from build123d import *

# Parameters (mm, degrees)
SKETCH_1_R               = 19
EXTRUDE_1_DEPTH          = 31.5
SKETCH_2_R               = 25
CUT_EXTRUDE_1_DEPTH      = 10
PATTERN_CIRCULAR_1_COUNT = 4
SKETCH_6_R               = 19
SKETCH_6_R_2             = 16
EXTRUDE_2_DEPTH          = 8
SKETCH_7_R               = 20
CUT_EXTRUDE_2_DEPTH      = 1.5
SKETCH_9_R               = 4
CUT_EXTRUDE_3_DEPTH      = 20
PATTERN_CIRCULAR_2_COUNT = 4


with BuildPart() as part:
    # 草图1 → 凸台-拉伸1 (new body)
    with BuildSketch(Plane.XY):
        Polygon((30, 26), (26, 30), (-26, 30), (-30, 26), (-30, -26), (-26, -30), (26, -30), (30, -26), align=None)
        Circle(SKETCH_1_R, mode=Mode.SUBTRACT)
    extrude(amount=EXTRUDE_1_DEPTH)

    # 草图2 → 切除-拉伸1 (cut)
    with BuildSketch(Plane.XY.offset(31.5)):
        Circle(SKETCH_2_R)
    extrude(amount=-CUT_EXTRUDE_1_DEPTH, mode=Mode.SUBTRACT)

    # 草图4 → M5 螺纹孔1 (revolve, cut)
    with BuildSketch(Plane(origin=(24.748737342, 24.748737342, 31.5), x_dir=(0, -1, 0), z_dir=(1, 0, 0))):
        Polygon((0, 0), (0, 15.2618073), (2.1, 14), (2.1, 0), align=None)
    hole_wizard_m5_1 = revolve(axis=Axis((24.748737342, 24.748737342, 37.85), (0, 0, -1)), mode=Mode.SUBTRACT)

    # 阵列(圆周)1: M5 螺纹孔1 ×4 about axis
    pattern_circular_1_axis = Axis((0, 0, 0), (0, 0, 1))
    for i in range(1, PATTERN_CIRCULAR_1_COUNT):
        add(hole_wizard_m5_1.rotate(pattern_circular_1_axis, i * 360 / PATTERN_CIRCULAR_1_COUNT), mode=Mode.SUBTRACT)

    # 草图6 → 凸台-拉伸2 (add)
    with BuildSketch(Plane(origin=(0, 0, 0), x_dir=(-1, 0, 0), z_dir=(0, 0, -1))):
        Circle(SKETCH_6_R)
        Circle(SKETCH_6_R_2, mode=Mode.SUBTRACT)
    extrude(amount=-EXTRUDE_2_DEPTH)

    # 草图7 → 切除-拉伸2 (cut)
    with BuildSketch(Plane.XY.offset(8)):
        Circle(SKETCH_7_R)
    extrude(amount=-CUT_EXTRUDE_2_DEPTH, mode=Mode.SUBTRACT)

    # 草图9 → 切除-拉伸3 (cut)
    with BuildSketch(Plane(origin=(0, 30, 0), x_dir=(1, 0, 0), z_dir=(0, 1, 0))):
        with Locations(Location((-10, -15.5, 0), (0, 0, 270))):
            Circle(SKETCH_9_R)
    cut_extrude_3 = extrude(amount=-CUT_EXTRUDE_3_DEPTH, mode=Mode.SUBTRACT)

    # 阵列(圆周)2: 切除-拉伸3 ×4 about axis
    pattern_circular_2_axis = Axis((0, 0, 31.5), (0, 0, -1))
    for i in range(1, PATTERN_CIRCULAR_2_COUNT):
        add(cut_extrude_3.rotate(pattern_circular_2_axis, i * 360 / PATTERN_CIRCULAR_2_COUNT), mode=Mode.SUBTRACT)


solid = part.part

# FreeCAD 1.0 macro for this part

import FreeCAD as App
import Part
import Sketcher

V = App.Vector
Q = App.Units.Quantity

doc = App.newDocument("Part")
body = doc.addObject("PartDesign::Body", "Body")

sketch1 = doc.addObject("Sketcher::SketchObject", "Sketch")
body.addObject(sketch1)
sketch1.AttachmentSupport = (doc.XY_Plane, [""])
sketch1.MapMode = "FlatFace"
sketch1.addGeometry([
    Part.LineSegment(V(30, 26, 0), V(26, 30, 0)),
    Part.LineSegment(V(26, 30, 0), V(-26, 30, 0)),
    Part.LineSegment(V(-26, 30, 0), V(-30, 26, 0)),
    Part.LineSegment(V(-30, 26, 0), V(-30, -26, 0)),
    Part.LineSegment(V(-30, -26, 0), V(-26, -30, 0)),
    Part.LineSegment(V(-26, -30, 0), V(26, -30, 0)),
    Part.LineSegment(V(26, -30, 0), V(30, -26, 0)),
    Part.LineSegment(V(30, -26, 0), V(30, 26, 0)),
    Part.Circle(V(0, 0, 0), V(0, 0, 1), 19),
], False)
sketch1.addConstraint([
    Sketcher.Constraint("Coincident", 0, 2, 1, 1),
    Sketcher.Constraint("Coincident", 1, 2, 2, 1),
    Sketcher.Constraint("Coincident", 2, 2, 3, 1),
    Sketcher.Constraint("Coincident", 3, 2, 4, 1),
    Sketcher.Constraint("Coincident", 4, 2, 5, 1),
    Sketcher.Constraint("Coincident", 5, 2, 6, 1),
    Sketcher.Constraint("Coincident", 6, 2, 7, 1),
    Sketcher.Constraint("Coincident", 7, 2, 0, 1),
    Sketcher.Constraint("Horizontal", 1),
    Sketcher.Constraint("Vertical", 3),
    Sketcher.Constraint("Horizontal", 5),
    Sketcher.Constraint("Vertical", 7),
    Sketcher.Constraint("Coincident", 8, 3, -1, 1),
    Sketcher.Constraint("Symmetric", 0, 2, 4, 2, -1, 1),
    Sketcher.Constraint("Symmetric", 2, 2, 6, 2, -1, 1),
    Sketcher.Constraint("Perpendicular", 0, 2),
    Sketcher.Constraint("Perpendicular", 2, 4),
    Sketcher.Constraint("Perpendicular", 4, 6),
    Sketcher.Constraint("Horizontal", 3, 2, 6, 2),
    Sketcher.Constraint("Vertical", 1, 2, 4, 2),
    Sketcher.Constraint("Equal", 5, 3),
    Sketcher.Constraint("Diameter", 8, 38.0),
    Sketcher.Constraint("DistanceX", 1, 2, 1, 1, 52.0),
    Sketcher.Constraint("DistanceY", -1, 1, 0, 2, 30.0),
])
pad1 = doc.addObject("PartDesign::Pad", "Pad")
body.addObject(pad1)
pad1.Profile = sketch1
pad1.Length = 31.5

sketch2 = doc.addObject("Sketcher::SketchObject", "Sketch001")
body.addObject(sketch2)
sketch2.AttachmentSupport = (doc.XY_Plane, [""])
sketch2.MapMode = "FlatFace"
sketch2.AttachmentOffset = App.Placement(V(0, 0, 31.5), App.Rotation())
sketch2.addGeometry(Part.Circle(V(0, 0, 0), V(0, 0, 1), 25), False)
sketch2.addConstraint([
    Sketcher.Constraint("Coincident", 0, 3, -1, 1),
    Sketcher.Constraint("Diameter", 0, 50.0),
])
pocket1 = doc.addObject("PartDesign::Pocket", "Pocket")
body.addObject(pocket1)
pocket1.Profile = sketch2
pocket1.Length = 10

sketch3 = doc.addObject("Sketcher::SketchObject", "Sketch002")
body.addObject(sketch3)
sketch3.AttachmentSupport = (doc.YZ_Plane, [""])
sketch3.MapMode = "FlatFace"
sketch3.AttachmentOffset = App.Placement(V(0, 0, 24.748737), App.Rotation())
sketch3.addGeometry([
    Part.LineSegment(V(24.748737, 16.238193, 0), V(24.748737, 31.5, 0)),
    Part.LineSegment(V(24.748737, 31.5, 0), V(22.648737, 31.5, 0)),
    Part.LineSegment(V(22.648737, 31.5, 0), V(22.648737, 17.5, 0)),
    Part.LineSegment(V(22.648737, 17.5, 0), V(24.748737, 16.238193, 0)),
], False)
sketch3.addGeometry(Part.LineSegment(V(24.748737, 31.5, 0), V(24.748737, 16.238193, 0)), True)
sketch3.addConstraint([
    Sketcher.Constraint("Coincident", 0, 2, 1, 1),
    Sketcher.Constraint("Coincident", 1, 2, 2, 1),
    Sketcher.Constraint("Coincident", 2, 2, 3, 1),
    Sketcher.Constraint("Coincident", 3, 2, 0, 1),
    Sketcher.Constraint("Vertical", 0),
    Sketcher.Constraint("Horizontal", 1),
    Sketcher.Constraint("Vertical", 2),
    Sketcher.Constraint("Vertical", 4),
    Sketcher.Constraint("Coincident", 4, 1, 0, 2),
    Sketcher.Constraint("Equal", 0, 4),
    Sketcher.Constraint("DistanceY", 2, 2, 2, 1, 14.0),
    Sketcher.Constraint("Angle", 3, Q("-31 deg")),
    Sketcher.Constraint("DistanceX", 1, 2, 1, 1, 2.1),
    Sketcher.Constraint("DistanceY", -1, 1, 0, 2, 31.5),
    Sketcher.Constraint("DistanceX", -1, 1, 0, 2, 24.748737),
])
groove = doc.addObject("PartDesign::Groove", "Groove")
body.addObject(groove)
groove.Profile = sketch3
groove.ReferenceAxis = (sketch3, ["Axis0"])
groove.Angle = 360
doc.recompute()

polarpattern = doc.addObject("PartDesign::PolarPattern", "PolarPattern")
body.addObject(polarpattern)
polarpattern.Originals = [groove]
polarpattern.Axis = (doc.Z_Axis, [""])
polarpattern.Angle = 360
polarpattern.Occurrences = 4
body.Tip = polarpattern

sketch4 = doc.addObject("Sketcher::SketchObject", "Sketch003")
body.addObject(sketch4)
sketch4.AttachmentSupport = (doc.XY_Plane, [""])
sketch4.MapMode = "FlatFace"
sketch4.addGeometry([
    Part.Circle(V(0, 0, 0), V(0, 0, 1), 19),
    Part.Circle(V(0, 0, 0), V(0, 0, 1), 16),
], False)
sketch4.addConstraint([
    Sketcher.Constraint("Coincident", 0, 3, -1, 1),
    Sketcher.Constraint("Coincident", 1, 3, -1, 1),
    Sketcher.Constraint("Diameter", 0, 38.0),
    Sketcher.Constraint("Diameter", 1, 32.0),
])
pad2 = doc.addObject("PartDesign::Pad", "Pad001")
body.addObject(pad2)
pad2.Profile = sketch4
pad2.Length = 8

sketch5 = doc.addObject("Sketcher::SketchObject", "Sketch004")
body.addObject(sketch5)
sketch5.AttachmentSupport = (doc.XY_Plane, [""])
sketch5.MapMode = "FlatFace"
sketch5.AttachmentOffset = App.Placement(V(0, 0, 8), App.Rotation())
sketch5.addGeometry(Part.Circle(V(0, 0, 0), V(0, 0, 1), 20), False)
sketch5.addConstraint([
    Sketcher.Constraint("Coincident", 0, 3, -1, 1),
    Sketcher.Constraint("Diameter", 0, 40.0),
])
pocket2 = doc.addObject("PartDesign::Pocket", "Pocket001")
body.addObject(pocket2)
pocket2.Profile = sketch5
pocket2.Length = 1.5

sketch6 = doc.addObject("Sketcher::SketchObject", "Sketch005")
body.addObject(sketch6)
sketch6.AttachmentSupport = (doc.XZ_Plane, [""])
sketch6.MapMode = "FlatFace"
sketch6.AttachmentOffset = App.Placement(V(0, 0, -30), App.Rotation())
sketch6.addGeometry(Part.Circle(V(-10, 15.5, 0), V(0, 0, 1), 4), False)
sketch6.addConstraint([
    Sketcher.Constraint("Diameter", 0, 8.0),
    Sketcher.Constraint("DistanceX", 0, 3, -1, 1, 10.0),
    Sketcher.Constraint("DistanceY", -1, 1, 0, 3, 15.5),
])
pocket3 = doc.addObject("PartDesign::Pocket", "Pocket002")
body.addObject(pocket3)
pocket3.Profile = sketch6
pocket3.Length = 20
pocket3.Reversed = True
doc.recompute()

polarpattern2 = doc.addObject("PartDesign::PolarPattern", "PolarPattern001")
body.addObject(polarpattern2)
polarpattern2.Originals = [pocket3]
polarpattern2.Axis = (doc.Z_Axis, [""])
polarpattern2.Angle = 360
polarpattern2.Occurrences = 4
body.Tip = polarpattern2

doc.recompute()
